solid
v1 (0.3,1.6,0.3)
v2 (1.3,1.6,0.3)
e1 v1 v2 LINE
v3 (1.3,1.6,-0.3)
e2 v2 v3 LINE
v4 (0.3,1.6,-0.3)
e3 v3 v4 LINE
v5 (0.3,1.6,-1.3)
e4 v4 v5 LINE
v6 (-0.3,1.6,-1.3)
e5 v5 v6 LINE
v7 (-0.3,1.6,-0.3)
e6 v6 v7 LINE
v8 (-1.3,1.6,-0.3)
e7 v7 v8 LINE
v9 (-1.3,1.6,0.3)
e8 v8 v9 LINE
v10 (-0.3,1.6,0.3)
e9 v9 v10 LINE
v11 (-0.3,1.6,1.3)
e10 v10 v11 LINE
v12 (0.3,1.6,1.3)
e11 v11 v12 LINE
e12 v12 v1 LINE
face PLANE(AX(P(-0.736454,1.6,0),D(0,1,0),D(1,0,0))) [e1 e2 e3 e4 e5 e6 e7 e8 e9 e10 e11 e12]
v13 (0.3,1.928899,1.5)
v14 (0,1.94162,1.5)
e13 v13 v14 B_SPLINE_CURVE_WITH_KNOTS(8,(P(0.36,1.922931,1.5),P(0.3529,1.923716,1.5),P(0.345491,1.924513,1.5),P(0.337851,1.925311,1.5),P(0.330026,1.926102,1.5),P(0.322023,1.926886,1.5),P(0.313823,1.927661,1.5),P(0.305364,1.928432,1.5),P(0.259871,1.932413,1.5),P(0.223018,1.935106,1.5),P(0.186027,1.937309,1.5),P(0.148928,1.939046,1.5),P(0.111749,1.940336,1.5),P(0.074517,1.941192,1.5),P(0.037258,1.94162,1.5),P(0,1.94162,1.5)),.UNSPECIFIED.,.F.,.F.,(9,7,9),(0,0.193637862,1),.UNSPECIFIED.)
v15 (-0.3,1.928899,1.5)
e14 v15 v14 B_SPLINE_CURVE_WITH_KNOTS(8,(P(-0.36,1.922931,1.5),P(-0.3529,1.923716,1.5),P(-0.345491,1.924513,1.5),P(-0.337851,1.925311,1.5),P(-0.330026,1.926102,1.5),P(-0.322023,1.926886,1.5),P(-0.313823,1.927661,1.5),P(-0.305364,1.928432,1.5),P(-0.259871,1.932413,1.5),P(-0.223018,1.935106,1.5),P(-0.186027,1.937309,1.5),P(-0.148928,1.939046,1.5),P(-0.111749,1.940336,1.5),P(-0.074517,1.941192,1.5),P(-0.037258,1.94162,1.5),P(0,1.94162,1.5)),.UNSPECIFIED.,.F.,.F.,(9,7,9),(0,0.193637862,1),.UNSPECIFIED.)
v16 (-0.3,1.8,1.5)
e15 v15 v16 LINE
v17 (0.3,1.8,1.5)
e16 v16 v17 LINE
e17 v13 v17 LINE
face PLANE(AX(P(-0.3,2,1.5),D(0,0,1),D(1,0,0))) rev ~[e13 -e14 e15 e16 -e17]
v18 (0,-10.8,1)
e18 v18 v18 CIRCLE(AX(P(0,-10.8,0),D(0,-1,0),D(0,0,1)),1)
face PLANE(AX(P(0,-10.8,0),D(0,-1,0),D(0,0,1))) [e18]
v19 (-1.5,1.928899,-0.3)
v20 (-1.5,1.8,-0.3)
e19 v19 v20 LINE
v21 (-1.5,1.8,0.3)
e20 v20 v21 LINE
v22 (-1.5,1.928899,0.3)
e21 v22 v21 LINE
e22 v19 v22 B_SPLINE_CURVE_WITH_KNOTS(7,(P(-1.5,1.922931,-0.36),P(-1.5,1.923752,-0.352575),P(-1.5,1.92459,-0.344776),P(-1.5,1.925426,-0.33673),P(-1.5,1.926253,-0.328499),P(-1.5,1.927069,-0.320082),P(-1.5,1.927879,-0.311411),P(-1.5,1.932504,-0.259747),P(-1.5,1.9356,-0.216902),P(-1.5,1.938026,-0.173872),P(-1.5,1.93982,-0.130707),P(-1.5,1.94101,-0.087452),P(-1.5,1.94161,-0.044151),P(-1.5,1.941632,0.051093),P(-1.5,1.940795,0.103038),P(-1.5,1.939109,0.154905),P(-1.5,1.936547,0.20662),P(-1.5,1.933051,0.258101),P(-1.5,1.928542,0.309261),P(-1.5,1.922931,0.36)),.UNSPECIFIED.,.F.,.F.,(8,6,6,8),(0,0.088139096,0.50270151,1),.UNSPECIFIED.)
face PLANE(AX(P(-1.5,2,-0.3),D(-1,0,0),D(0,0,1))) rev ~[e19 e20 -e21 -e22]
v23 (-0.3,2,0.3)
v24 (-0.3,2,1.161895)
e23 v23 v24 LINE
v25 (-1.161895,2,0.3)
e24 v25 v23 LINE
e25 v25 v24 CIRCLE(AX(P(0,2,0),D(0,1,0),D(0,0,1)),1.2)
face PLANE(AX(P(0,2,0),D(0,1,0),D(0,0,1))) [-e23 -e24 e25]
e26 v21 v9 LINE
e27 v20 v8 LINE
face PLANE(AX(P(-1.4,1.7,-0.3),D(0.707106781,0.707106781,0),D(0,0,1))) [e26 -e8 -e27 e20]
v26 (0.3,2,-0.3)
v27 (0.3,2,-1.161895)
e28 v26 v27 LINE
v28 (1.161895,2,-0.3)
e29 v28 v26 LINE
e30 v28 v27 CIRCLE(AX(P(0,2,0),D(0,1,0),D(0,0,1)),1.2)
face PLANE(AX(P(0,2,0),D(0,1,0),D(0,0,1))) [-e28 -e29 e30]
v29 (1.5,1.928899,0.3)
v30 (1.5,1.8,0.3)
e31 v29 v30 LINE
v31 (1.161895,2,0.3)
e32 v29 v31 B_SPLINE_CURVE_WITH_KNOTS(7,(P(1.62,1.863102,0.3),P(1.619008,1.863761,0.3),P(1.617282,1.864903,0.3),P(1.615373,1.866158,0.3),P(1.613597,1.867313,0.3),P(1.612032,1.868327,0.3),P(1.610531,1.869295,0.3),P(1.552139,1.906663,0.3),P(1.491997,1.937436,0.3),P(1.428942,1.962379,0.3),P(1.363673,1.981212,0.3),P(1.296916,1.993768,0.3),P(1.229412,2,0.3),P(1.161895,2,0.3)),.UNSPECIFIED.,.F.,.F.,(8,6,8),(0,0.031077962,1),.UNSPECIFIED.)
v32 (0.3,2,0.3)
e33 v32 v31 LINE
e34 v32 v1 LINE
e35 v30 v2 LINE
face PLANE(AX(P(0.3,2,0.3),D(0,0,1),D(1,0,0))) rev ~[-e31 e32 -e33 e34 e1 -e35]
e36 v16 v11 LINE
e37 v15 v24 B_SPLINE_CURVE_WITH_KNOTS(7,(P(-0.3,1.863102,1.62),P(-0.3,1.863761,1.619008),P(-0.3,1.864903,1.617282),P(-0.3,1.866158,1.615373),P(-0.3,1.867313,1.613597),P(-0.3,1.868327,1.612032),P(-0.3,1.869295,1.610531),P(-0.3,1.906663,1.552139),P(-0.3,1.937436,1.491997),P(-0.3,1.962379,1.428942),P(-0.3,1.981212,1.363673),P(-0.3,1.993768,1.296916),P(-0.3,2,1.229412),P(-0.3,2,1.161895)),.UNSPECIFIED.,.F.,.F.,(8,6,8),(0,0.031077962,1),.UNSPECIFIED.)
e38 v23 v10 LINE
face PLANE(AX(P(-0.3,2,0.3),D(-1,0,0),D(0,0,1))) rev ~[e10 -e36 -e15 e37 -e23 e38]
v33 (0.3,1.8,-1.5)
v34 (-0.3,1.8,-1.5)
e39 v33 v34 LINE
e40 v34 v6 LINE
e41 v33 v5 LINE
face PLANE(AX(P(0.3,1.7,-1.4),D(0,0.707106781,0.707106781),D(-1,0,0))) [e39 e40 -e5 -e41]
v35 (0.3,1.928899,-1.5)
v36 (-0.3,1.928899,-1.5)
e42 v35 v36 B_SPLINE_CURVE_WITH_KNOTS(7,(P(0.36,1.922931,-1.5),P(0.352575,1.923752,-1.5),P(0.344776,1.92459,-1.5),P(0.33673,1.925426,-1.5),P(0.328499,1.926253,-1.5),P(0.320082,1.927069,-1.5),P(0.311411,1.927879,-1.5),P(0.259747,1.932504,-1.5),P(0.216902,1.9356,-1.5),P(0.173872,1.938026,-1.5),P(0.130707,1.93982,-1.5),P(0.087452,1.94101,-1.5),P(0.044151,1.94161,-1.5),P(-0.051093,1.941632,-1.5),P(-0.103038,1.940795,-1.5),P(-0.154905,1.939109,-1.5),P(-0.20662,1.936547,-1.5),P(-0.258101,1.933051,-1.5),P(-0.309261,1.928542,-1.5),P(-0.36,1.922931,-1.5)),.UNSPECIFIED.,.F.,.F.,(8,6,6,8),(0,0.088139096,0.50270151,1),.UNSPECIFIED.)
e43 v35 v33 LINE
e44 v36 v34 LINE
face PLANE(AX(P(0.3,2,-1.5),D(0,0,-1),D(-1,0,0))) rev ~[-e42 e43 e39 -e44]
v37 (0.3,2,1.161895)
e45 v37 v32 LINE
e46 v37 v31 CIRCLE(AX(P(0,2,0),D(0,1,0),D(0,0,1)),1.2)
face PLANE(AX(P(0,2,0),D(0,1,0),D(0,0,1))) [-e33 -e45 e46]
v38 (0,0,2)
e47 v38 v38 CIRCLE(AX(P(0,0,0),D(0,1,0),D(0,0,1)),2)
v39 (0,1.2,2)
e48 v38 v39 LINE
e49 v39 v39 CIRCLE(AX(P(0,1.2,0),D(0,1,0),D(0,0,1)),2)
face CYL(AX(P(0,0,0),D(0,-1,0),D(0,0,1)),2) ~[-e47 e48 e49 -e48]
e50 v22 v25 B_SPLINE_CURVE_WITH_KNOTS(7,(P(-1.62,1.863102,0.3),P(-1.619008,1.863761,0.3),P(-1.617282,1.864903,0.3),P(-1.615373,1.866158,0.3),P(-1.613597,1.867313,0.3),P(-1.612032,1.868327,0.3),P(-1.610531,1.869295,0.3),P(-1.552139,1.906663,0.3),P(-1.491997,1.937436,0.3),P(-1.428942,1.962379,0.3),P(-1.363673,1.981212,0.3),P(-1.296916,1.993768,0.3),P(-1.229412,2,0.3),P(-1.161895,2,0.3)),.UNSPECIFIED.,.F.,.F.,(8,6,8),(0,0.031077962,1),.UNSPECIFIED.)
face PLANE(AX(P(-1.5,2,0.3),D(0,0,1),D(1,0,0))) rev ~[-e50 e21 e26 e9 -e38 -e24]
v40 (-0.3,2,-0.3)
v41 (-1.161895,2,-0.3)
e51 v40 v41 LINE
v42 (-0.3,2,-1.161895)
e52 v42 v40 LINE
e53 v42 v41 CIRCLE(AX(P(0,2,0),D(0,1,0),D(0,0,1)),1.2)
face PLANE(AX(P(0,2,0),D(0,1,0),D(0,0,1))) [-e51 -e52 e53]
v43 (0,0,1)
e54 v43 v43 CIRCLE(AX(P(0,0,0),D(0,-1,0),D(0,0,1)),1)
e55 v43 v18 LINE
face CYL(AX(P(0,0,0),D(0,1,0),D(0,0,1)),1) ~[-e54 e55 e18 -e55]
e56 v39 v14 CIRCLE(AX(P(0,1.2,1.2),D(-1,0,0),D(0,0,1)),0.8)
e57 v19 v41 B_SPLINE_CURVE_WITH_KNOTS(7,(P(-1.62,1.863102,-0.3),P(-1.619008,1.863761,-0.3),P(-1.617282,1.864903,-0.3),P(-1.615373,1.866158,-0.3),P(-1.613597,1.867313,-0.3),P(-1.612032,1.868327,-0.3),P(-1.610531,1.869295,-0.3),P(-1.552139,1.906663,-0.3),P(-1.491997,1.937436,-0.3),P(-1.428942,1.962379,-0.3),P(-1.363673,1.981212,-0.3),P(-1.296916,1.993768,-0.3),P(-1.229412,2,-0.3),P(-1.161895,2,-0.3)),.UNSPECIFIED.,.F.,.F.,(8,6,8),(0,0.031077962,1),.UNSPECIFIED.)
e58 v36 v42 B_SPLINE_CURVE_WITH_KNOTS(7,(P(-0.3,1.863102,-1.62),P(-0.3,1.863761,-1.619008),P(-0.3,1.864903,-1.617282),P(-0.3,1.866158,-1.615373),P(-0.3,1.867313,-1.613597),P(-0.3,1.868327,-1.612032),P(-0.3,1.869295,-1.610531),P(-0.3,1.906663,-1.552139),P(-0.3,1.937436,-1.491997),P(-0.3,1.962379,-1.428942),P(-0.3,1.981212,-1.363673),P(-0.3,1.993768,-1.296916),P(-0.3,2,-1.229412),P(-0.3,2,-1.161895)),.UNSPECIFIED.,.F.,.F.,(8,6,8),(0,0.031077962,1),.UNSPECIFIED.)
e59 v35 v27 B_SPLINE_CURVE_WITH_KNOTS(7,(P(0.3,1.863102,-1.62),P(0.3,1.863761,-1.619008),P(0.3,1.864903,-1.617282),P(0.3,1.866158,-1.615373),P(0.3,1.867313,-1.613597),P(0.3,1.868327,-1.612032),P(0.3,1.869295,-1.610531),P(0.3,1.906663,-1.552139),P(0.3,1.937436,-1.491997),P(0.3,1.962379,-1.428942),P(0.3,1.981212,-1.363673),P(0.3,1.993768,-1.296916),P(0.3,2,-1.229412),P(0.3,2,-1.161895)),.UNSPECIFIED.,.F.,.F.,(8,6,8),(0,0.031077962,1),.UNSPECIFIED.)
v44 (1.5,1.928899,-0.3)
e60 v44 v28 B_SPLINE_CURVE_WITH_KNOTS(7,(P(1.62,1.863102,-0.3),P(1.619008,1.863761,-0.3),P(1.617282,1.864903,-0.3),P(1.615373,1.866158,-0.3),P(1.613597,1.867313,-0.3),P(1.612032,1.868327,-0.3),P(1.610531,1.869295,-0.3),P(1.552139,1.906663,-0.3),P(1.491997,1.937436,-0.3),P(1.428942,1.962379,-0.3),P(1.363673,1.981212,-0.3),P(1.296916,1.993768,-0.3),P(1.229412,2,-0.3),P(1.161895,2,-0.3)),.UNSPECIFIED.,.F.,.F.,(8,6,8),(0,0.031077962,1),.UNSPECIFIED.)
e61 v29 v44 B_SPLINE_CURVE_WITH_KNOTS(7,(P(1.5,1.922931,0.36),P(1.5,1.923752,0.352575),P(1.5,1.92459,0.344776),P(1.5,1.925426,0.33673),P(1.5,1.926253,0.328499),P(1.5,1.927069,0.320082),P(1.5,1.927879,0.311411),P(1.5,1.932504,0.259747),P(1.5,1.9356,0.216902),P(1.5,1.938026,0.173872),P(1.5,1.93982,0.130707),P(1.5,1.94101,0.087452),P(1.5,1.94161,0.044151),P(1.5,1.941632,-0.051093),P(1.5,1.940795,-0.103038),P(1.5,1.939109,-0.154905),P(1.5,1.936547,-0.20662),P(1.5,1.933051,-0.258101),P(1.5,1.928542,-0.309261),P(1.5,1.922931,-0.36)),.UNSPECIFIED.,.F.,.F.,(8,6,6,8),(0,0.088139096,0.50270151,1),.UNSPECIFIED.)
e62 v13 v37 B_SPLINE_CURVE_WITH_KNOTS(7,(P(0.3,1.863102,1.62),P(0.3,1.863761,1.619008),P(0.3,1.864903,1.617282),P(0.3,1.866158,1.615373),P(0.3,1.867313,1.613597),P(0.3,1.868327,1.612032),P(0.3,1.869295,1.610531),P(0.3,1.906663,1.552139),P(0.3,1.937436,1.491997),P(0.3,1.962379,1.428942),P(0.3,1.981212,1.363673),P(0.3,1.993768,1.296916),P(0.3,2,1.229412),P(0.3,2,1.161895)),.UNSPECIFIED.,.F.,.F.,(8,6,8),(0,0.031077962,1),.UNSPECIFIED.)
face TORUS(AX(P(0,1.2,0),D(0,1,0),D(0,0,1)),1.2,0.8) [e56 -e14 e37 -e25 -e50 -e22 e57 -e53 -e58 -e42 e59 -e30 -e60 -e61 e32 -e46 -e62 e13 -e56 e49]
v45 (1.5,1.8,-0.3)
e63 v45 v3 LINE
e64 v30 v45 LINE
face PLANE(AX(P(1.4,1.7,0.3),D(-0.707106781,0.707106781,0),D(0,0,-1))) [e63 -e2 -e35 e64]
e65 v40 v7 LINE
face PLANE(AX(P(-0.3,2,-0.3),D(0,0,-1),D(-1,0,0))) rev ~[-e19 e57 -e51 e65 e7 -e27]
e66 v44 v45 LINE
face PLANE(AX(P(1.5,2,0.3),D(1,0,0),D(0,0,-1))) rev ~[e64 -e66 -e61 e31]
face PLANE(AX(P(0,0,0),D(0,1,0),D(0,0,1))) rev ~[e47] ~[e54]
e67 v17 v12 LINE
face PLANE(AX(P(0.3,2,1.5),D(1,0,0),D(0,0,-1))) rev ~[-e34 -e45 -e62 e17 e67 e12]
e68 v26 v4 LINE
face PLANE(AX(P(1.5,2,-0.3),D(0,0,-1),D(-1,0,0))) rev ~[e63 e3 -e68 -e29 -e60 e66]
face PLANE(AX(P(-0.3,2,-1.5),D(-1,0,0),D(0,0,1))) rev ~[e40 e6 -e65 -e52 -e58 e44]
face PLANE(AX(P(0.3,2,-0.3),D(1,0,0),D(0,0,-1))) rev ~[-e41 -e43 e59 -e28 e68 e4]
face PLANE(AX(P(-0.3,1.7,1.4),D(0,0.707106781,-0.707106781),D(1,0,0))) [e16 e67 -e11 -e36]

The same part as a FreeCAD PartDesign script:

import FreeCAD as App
import Part
import Sketcher

V = App.Vector


def edges_at(feature, points):
    """Names of the edges that pass closest to the given points."""
    edges = feature.Shape.Edges
    near = lambda p: min(range(len(edges)), key=lambda i: edges[i].distToShape(Part.Vertex(*p))[0])
    return sorted({f"Edge{near(p) + 1}" for p in points})


def add_polygon(sketch, points):
    """Adds a closed chain of lines whose ends are joined by coincident constraints."""
    first, n = sketch.GeometryCount, len(points)
    for a, b in zip(points, points[1:] + points[:1]):
        sketch.addGeometry(Part.LineSegment(App.Vector(*a, 0), App.Vector(*b, 0)), False)
    for i in range(n):
        sketch.addConstraint(Sketcher.Constraint("Coincident", first + i, 2, first + (i + 1) % n, 1))

doc = App.newDocument("Part")
body = doc.addObject("PartDesign::Body", "Body")

sketch1 = doc.addObject("Sketcher::SketchObject", "Sketch")
body.addObject(sketch1)
sketch1.AttachmentSupport = (doc.XZ_Plane, [""])
sketch1.MapMode = "FlatFace"
sketch1.addGeometry(Part.Circle(V(0, 0, 0), V(0, 0, 1), 2), False)
sketch1.addConstraint(Sketcher.Constraint("Coincident", 0, 3, -1, 1))
sketch1.addConstraint(Sketcher.Constraint("Diameter", 0, 4.0))
pad1 = doc.addObject("PartDesign::Pad", "Pad")
body.addObject(pad1)
pad1.Profile = sketch1
pad1.Length = 2
pad1.Reversed = True
doc.recompute()

fillet = doc.addObject("PartDesign::Fillet", "Fillet")
body.addObject(fillet)
fillet.Base = (pad1, edges_at(pad1, [(0, 2, -2)]))
fillet.Radius = 0.8

sketch2 = doc.addObject("Sketcher::SketchObject", "Sketch001")
body.addObject(sketch2)
sketch2.AttachmentSupport = (doc.XZ_Plane, [""])
sketch2.MapMode = "FlatFace"
sketch2.AttachmentOffset = App.Placement(V(0, 0, -2), App.Rotation())
add_polygon(sketch2, [(-0.3, -0.3), (-1.5, -0.3), (-1.5, 0.3), (-0.3, 0.3), (-0.3, 1.5), (0.3, 1.5), (0.3, 0.3), (1.5, 0.3), (1.5, -0.3), (0.3, -0.3), (0.3, -1.5), (-0.3, -1.5)])
sketch2.addConstraint(Sketcher.Constraint("Horizontal", 0))
sketch2.addConstraint(Sketcher.Constraint("Vertical", 1))
sketch2.addConstraint(Sketcher.Constraint("Horizontal", 2))
sketch2.addConstraint(Sketcher.Constraint("Vertical", 3))
sketch2.addConstraint(Sketcher.Constraint("Horizontal", 4))
sketch2.addConstraint(Sketcher.Constraint("Vertical", 5))
sketch2.addConstraint(Sketcher.Constraint("Horizontal", 6))
sketch2.addConstraint(Sketcher.Constraint("Vertical", 7))
sketch2.addConstraint(Sketcher.Constraint("Horizontal", 8))
sketch2.addConstraint(Sketcher.Constraint("Vertical", 9))
sketch2.addConstraint(Sketcher.Constraint("Horizontal", 10))
sketch2.addConstraint(Sketcher.Constraint("Vertical", 11))
sketch2.addConstraint(Sketcher.Constraint("Symmetric", 0, 2, 6, 2, -1, 1))
sketch2.addConstraint(Sketcher.Constraint("Symmetric", 2, 2, 8, 2, -1, 1))
sketch2.addConstraint(Sketcher.Constraint("Symmetric", 4, 2, 10, 2, -1, 1))
sketch2.addConstraint(Sketcher.Constraint("Symmetric", 2, 2, 5, 2, -2))
sketch2.addConstraint(Sketcher.Constraint("Equal", 10, 1))
sketch2.addConstraint(Sketcher.Constraint("Equal", 8, 3))
sketch2.addConstraint(Sketcher.Constraint("DistanceX", 0, 2, 0, 1, 1.2))
sketch2.addConstraint(Sketcher.Constraint("DistanceX", 4, 1, 4, 2, 0.6))
pocket1 = doc.addObject("PartDesign::Pocket", "Pocket")
body.addObject(pocket1)
pocket1.Profile = sketch2
pocket1.Length = 0.4
pocket1.Reversed = True
doc.recompute()

chamfer = doc.addObject("PartDesign::Chamfer", "Chamfer")
body.addObject(chamfer)
chamfer.Base = (pocket1, edges_at(pocket1, [
    (-1.5, 1.6, 0),
    (0, 1.6, 1.5),
    (0, 1.6, -1.5),
    (1.5, 1.6, 0),
]))
chamfer.Size = 0.2

sketch3 = doc.addObject("Sketcher::SketchObject", "Sketch002")
body.addObject(sketch3)
sketch3.AttachmentSupport = (doc.XZ_Plane, [""])
sketch3.MapMode = "FlatFace"
sketch3.addGeometry(Part.Circle(V(0, 0, 0), V(0, 0, 1), 1), False)
sketch3.addConstraint(Sketcher.Constraint("Coincident", 0, 3, -1, 1))
sketch3.addConstraint(Sketcher.Constraint("Diameter", 0, 2.0))
pad2 = doc.addObject("PartDesign::Pad", "Pad001")
body.addObject(pad2)
pad2.Profile = sketch3
pad2.Length = 10.8

doc.recompute()
